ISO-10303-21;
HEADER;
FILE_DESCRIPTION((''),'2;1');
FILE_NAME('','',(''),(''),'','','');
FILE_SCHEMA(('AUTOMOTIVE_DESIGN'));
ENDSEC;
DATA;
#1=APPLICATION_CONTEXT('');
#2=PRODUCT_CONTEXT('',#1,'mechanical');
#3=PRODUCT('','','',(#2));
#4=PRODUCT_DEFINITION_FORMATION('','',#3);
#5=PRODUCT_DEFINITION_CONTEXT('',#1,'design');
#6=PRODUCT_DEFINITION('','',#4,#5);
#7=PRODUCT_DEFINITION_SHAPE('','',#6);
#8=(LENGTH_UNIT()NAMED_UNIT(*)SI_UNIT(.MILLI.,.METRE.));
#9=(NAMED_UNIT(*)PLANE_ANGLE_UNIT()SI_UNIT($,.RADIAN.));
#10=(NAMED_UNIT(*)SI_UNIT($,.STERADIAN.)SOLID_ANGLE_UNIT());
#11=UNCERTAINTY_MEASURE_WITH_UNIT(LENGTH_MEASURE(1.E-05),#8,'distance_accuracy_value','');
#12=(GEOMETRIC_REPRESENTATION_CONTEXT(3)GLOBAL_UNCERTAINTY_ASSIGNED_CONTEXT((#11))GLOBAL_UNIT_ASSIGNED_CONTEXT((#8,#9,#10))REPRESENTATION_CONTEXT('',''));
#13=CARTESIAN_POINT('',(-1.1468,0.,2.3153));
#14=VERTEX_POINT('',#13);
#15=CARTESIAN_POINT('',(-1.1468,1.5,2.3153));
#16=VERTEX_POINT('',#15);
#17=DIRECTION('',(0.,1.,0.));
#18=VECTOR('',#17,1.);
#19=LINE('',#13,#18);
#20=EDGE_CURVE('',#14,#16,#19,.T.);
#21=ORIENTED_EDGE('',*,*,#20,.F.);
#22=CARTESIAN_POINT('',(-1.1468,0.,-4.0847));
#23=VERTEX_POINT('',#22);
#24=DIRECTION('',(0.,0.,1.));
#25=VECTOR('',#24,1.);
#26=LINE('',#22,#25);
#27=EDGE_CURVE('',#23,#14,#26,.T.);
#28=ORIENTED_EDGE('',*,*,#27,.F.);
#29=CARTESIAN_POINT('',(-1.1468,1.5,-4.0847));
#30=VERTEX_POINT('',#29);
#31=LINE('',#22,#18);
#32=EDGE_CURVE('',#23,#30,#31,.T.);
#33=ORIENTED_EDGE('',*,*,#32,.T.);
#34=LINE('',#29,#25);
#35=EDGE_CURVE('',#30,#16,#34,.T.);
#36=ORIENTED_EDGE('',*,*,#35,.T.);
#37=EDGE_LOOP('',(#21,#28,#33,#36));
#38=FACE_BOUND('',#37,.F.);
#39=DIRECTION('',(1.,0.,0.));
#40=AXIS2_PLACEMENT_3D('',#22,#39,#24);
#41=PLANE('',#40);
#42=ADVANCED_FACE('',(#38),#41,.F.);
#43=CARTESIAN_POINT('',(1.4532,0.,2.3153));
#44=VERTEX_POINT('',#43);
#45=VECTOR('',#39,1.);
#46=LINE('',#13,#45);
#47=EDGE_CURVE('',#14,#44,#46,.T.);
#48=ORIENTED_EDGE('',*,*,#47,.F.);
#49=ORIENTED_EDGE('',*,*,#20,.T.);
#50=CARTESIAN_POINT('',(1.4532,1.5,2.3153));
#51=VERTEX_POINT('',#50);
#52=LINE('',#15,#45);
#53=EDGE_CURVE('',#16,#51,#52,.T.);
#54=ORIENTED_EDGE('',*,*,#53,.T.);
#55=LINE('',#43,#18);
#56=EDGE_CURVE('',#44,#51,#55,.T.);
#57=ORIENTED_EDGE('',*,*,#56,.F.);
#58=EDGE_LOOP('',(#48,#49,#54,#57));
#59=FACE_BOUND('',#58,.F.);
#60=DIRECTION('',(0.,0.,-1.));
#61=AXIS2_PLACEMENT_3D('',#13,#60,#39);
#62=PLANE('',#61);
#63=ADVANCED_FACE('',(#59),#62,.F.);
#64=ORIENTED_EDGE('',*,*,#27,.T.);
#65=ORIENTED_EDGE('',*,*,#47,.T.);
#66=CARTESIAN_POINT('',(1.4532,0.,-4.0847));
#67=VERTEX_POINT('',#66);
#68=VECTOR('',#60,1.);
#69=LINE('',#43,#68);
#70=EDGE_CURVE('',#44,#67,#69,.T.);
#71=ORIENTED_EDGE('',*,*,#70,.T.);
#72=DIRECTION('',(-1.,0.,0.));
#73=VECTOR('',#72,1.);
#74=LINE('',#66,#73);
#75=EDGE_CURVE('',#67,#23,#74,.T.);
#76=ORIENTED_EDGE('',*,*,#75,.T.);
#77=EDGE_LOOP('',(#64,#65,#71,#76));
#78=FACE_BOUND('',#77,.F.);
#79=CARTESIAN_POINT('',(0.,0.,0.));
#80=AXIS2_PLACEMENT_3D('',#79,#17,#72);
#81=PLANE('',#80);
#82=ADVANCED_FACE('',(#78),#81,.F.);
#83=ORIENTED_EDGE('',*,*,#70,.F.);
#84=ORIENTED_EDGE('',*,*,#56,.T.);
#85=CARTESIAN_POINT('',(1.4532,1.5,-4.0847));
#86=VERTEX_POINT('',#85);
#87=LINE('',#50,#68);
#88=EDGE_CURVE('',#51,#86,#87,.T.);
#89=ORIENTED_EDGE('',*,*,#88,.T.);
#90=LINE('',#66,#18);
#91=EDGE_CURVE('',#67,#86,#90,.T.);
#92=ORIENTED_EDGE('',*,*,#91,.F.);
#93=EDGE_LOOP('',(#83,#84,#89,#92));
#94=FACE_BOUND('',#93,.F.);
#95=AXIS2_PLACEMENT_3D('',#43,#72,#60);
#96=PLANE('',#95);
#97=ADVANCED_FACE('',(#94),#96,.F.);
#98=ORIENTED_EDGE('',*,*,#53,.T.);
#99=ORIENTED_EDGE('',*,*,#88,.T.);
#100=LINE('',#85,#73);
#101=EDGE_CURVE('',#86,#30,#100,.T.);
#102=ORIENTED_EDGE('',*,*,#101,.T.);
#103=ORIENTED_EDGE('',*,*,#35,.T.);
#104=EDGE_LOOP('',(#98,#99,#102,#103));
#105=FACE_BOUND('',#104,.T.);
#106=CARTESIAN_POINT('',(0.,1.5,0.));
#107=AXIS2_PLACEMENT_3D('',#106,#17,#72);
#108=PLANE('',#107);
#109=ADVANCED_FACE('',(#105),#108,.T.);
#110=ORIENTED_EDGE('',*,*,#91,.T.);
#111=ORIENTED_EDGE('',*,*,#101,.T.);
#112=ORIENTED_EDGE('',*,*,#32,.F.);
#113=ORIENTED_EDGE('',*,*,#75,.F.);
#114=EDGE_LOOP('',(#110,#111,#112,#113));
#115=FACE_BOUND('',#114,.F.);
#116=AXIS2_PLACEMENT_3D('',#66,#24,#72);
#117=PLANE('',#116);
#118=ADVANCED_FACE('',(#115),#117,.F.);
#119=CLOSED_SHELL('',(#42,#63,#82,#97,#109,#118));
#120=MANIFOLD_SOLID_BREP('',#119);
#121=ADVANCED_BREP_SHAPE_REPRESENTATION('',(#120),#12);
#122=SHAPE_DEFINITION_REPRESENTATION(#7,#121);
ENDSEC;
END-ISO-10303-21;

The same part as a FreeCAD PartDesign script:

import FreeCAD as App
import Part
import Sketcher


def add_polygon(sketch, points):
    """Adds a closed chain of lines whose ends are joined by coincident constraints."""
    first, n = sketch.GeometryCount, len(points)
    for a, b in zip(points, points[1:] + points[:1]):
        sketch.addGeometry(Part.LineSegment(App.Vector(*a, 0), App.Vector(*b, 0)), False)
    for i in range(n):
        sketch.addConstraint(Sketcher.Constraint("Coincident", first + i, 2, first + (i + 1) % n, 1))

doc = App.newDocument("Part")
body = doc.addObject("PartDesign::Body", "Body")

sketch1 = body.newObject("Sketcher::SketchObject", "Sketch")
sketch1.AttachmentSupport = (doc.getObject("XZ_Plane"), [""])
sketch1.MapMode = "FlatFace"
add_polygon(sketch1, [(-1.1468, -4.0847), (-1.1468, 2.3153), (1.4532, 2.3153), (1.4532, -4.0847)])
sketch1.addConstraint(Sketcher.Constraint("Vertical", 0))
sketch1.addConstraint(Sketcher.Constraint("Horizontal", 1))
sketch1.addConstraint(Sketcher.Constraint("Vertical", 2))
sketch1.addConstraint(Sketcher.Constraint("Horizontal", 3))
sketch1.addConstraint(Sketcher.Constraint("DistanceX", 1, 1, 1, 2, 2.6))
sketch1.addConstraint(Sketcher.Constraint("DistanceY", 0, 1, 0, 2, 6.4))
sketch1.addConstraint(Sketcher.Constraint("DistanceX", 0, 2, -1, 1, 1.1468))
sketch1.addConstraint(Sketcher.Constraint("DistanceY", -1, 1, 0, 2, 2.3153))
pad1 = body.newObject("PartDesign::Pad", "Pad")
pad1.Profile = sketch1
pad1.Length = 1.5
pad1.Reversed = True

doc.recompute()
